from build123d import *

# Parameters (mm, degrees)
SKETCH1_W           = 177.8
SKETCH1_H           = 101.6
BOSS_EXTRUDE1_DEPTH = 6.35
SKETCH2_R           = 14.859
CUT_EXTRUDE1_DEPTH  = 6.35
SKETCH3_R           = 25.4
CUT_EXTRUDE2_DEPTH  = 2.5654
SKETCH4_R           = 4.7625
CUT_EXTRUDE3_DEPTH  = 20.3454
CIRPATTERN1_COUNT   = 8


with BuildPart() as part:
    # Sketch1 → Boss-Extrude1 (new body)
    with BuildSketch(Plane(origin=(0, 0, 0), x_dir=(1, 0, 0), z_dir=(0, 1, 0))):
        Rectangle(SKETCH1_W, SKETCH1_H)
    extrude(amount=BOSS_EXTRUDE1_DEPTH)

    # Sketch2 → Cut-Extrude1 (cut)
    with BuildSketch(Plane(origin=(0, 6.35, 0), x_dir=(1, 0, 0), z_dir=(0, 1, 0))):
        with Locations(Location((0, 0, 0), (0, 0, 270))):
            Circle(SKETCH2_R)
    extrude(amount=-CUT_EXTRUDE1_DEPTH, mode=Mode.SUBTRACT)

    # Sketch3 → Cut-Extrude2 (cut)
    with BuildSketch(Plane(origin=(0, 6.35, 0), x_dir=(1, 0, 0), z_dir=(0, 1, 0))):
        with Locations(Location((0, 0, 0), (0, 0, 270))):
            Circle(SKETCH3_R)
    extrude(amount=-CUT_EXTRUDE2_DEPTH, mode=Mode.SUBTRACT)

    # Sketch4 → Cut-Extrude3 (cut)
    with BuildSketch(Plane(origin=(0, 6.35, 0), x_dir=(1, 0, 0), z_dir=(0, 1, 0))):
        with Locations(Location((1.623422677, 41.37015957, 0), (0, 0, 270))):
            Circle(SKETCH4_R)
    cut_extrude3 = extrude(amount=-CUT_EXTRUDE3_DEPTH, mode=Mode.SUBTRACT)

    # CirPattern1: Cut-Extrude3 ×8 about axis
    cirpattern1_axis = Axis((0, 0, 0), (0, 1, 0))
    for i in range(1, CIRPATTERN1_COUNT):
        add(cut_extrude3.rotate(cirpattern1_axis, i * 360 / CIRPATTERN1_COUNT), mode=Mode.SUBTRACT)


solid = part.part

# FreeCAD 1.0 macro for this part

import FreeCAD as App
import Part
import Sketcher
from FreeCAD import Vector
Q = App.Units.Quantity


def add_polygon(sketch, points):
    """Adds a closed chain of lines whose ends are joined by coincident constraints."""
    first, n = sketch.GeometryCount, len(points)
    for a, b in zip(points, points[1:] + points[:1]):
        sketch.addGeometry(Part.LineSegment(App.Vector(*a, 0), App.Vector(*b, 0)), False)
    for i in range(n):
        sketch.addConstraint(Sketcher.Constraint("Coincident", first + i, 2, first + (i + 1) % n, 1))

doc = App.newDocument("Part")
body = doc.addObject("PartDesign::Body", "Body")

# Sketch on XZ plane
sketch1 = body.newObject("Sketcher::SketchObject", "Sketch")
sketch1.AttachmentSupport = (doc.getObject("XZ_Plane"), [""])
sketch1.MapMode = "FlatFace"
add_polygon(sketch1, [(-88.9, -50.8), (-88.9, 50.8), (88.9, 50.8), (88.9, -50.8)])  # lines 0-3
sketch1.addConstraint([
    Sketcher.Constraint("Vertical", 0),
    Sketcher.Constraint("Horizontal", 1),
    Sketcher.Constraint("Vertical", 2),
    Sketcher.Constraint("Horizontal", 3),
    Sketcher.Constraint("Symmetric", 0, 2, 2, 2, -1, 1),
    Sketcher.Constraint("DistanceX", 1, 1, 1, 2, Q("7 in")),
    Sketcher.Constraint("DistanceY", 0, 1, 0, 2, Q("4 in")),
])
pad1 = body.newObject("PartDesign::Pad", "Pad")
pad1.Profile = sketch1
pad1.Length = Q("0.25 in")
pad1.Reversed = True

# Sketch on XZ plane
sketch2 = body.newObject("Sketcher::SketchObject", "Sketch001")
sketch2.AttachmentSupport = (doc.getObject("XZ_Plane"), [""])
sketch2.MapMode = "FlatFace"
sketch2.AttachmentOffset = App.Placement(Vector(0, 0, -0.25 * 25.4), App.Rotation())
sketch2.addGeometry(Part.Circle(Vector(0, 0, 0), Vector(0, 0, 1), 14.859), False)
sketch2.addConstraint([
    Sketcher.Constraint("Coincident", 0, 3, -1, 1),
    Sketcher.Constraint("Diameter", 0, Q("1.17 in")),
])
pocket1 = body.newObject("PartDesign::Pocket", "Pocket")
pocket1.Profile = sketch2
pocket1.Length = Q("0.25 in")
pocket1.Reversed = True

# Sketch on XZ plane
sketch3 = body.newObject("Sketcher::SketchObject", "Sketch002")
sketch3.AttachmentSupport = (doc.getObject("XZ_Plane"), [""])
sketch3.MapMode = "FlatFace"
sketch3.AttachmentOffset = App.Placement(Vector(0, 0, -0.25 * 25.4), App.Rotation())
sketch3.addGeometry(Part.Circle(Vector(0, 0, 0), Vector(0, 0, 1), 25.4), False)
sketch3.addConstraint([
    Sketcher.Constraint("Coincident", 0, 3, -1, 1),
    Sketcher.Constraint("Diameter", 0, Q("2 in")),
])
pocket2 = body.newObject("PartDesign::Pocket", "Pocket001")
pocket2.Profile = sketch3
pocket2.Length = Q("0.101 in")
pocket2.Reversed = True

# Sketch on XZ plane
sketch4 = body.newObject("Sketcher::SketchObject", "Sketch003")
sketch4.AttachmentSupport = (doc.getObject("XZ_Plane"), [""])
sketch4.MapMode = "FlatFace"
sketch4.AttachmentOffset = App.Placement(Vector(0, 0, -0.25 * 25.4), App.Rotation())
sketch4.addGeometry(Part.Circle(Vector(1.623423, -41.37016, 0), Vector(0, 0, 1), 4.7625), False)
sketch4.addConstraint([
    Sketcher.Constraint("Diameter", 0, Q("0.375 in")),
    Sketcher.Constraint("DistanceY", 0, 3, -1, 1, 41.37016),
    Sketcher.Constraint("DistanceX", -1, 1, 0, 3, 1.623423),
])
pocket3 = body.newObject("PartDesign::Pocket", "Pocket002")
pocket3.Profile = sketch4
pocket3.Length = Q("0.801 in")
pocket3.Reversed = True
doc.recompute()

polarpattern = body.newObject("PartDesign::PolarPattern", "PolarPattern")
polarpattern.Originals = [pocket3]
polarpattern.Axis = (doc.getObject("Y_Axis"), [""])
polarpattern.Angle = 360
polarpattern.Occurrences = 8
body.Tip = polarpattern

doc.recompute()
